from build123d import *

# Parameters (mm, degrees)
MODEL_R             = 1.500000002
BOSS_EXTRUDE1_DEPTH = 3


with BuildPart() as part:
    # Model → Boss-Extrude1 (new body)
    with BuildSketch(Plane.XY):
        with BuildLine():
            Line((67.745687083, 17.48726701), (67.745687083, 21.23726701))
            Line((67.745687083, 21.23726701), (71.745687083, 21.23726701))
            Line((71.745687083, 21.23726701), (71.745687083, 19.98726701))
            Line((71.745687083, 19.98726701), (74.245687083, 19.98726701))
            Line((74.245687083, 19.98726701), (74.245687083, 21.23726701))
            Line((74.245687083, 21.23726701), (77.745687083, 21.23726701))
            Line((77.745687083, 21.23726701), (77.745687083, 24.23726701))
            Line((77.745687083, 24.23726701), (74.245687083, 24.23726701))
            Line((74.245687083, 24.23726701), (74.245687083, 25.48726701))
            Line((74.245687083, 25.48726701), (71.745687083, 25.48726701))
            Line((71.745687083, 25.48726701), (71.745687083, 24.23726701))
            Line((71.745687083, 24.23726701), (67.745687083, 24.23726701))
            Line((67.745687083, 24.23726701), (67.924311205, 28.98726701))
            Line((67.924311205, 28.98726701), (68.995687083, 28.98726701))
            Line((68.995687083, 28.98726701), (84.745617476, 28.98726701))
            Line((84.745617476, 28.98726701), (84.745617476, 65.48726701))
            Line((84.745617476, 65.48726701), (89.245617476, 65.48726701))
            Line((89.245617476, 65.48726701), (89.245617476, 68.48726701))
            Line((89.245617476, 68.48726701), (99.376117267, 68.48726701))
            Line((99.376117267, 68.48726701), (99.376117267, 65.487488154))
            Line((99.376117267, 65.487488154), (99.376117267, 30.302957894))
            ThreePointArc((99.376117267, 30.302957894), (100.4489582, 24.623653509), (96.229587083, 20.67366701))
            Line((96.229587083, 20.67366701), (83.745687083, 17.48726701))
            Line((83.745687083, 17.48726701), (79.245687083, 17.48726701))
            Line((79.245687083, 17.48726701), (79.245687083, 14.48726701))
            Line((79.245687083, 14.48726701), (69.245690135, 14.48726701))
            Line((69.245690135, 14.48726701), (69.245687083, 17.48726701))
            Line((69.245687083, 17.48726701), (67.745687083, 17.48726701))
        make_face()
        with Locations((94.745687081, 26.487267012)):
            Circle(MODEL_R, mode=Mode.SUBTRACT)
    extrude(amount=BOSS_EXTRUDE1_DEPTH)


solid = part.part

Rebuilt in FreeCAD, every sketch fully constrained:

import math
import FreeCAD as App
import Part
import Sketcher
Q = App.Units.Quantity

doc = App.newDocument("Part")
body = doc.addObject("PartDesign::Body", "Body")

# Sketch on XY plane
sketch1 = body.newObject("Sketcher::SketchObject", "Sketch")
sketch1.AttachmentSupport = (doc.getObject("XY_Plane"), [""])
sketch1.MapMode = "FlatFace"
sketch1.addGeometry(Part.LineSegment(App.Vector(67.7, 21.2, 0), App.Vector(67.7, 17.5, 0)), False)
sketch1.addGeometry(Part.LineSegment(App.Vector(67.7, 17.5, 0), App.Vector(69.2, 17.5, 0)), False)
sketch1.addGeometry(Part.LineSegment(App.Vector(69.2, 17.5, 0), App.Vector(69.2, 14.5, 0)), False)
sketch1.addGeometry(Part.LineSegment(App.Vector(69.2, 14.5, 0), App.Vector(79.2, 14.5, 0)), False)
sketch1.addGeometry(Part.LineSegment(App.Vector(79.2, 14.5, 0), App.Vector(79.2, 17.5, 0)), False)
sketch1.addGeometry(Part.LineSegment(App.Vector(79.2, 17.5, 0), App.Vector(83.7, 17.5, 0)), False)
sketch1.addGeometry(Part.LineSegment(App.Vector(83.7, 17.5, 0), App.Vector(96.2, 20.7, 0)), False)
sketch1.addGeometry(Part.ArcOfCircle(Part.Circle(App.Vector(94.7, 26.5, 0), App.Vector(0, 0, 1), 6), math.radians(-76), math.radians(39)), False)
sketch1.addGeometry(Part.LineSegment(App.Vector(99.4, 30.3, 0), App.Vector(99.4, 68.5, 0)), False)
sketch1.addGeometry(Part.LineSegment(App.Vector(99.4, 68.5, 0), App.Vector(89.2, 68.5, 0)), False)
sketch1.addGeometry(Part.LineSegment(App.Vector(89.2, 68.5, 0), App.Vector(89.2, 65.5, 0)), False)
sketch1.addGeometry(Part.LineSegment(App.Vector(89.2, 65.5, 0), App.Vector(84.7, 65.5, 0)), False)
sketch1.addGeometry(Part.LineSegment(App.Vector(84.7, 65.5, 0), App.Vector(84.7, 29, 0)), False)
sketch1.addGeometry(Part.LineSegment(App.Vector(84.7, 29, 0), App.Vector(67.9, 29, 0)), False)
sketch1.addGeometry(Part.LineSegment(App.Vector(67.9, 29, 0), App.Vector(67.7, 24.2, 0)), False)
sketch1.addGeometry(Part.LineSegment(App.Vector(67.7, 24.2, 0), App.Vector(71.7, 24.2, 0)), False)
sketch1.addGeometry(Part.LineSegment(App.Vector(71.7, 24.2, 0), App.Vector(71.7, 25.5, 0)), False)
sketch1.addGeometry(Part.LineSegment(App.Vector(71.7, 25.5, 0), App.Vector(74.2, 25.5, 0)), False)
sketch1.addGeometry(Part.LineSegment(App.Vector(74.2, 25.5, 0), App.Vector(74.2, 24.2, 0)), False)
sketch1.addGeometry(Part.LineSegment(App.Vector(74.2, 24.2, 0), App.Vector(77.7, 24.2, 0)), False)
sketch1.addGeometry(Part.LineSegment(App.Vector(77.7, 24.2, 0), App.Vector(77.7, 21.2, 0)), False)
sketch1.addGeometry(Part.LineSegment(App.Vector(77.7, 21.2, 0), App.Vector(74.2, 21.2, 0)), False)
sketch1.addGeometry(Part.LineSegment(App.Vector(74.2, 21.2, 0), App.Vector(74.2, 20, 0)), False)
sketch1.addGeometry(Part.LineSegment(App.Vector(74.2, 20, 0), App.Vector(71.7, 20, 0)), False)
sketch1.addGeometry(Part.LineSegment(App.Vector(71.7, 20, 0), App.Vector(71.7, 21.2, 0)), False)
sketch1.addGeometry(Part.LineSegment(App.Vector(71.7, 21.2, 0), App.Vector(67.7, 21.2, 0)), False)
sketch1.addGeometry(Part.Circle(App.Vector(94.7, 26.5, 0), App.Vector(0, 0, 1), 1.5), False)
sketch1.addConstraint(Sketcher.Constraint("Coincident", 0, 2, 1, 1))
sketch1.addConstraint(Sketcher.Constraint("Coincident", 1, 2, 2, 1))
sketch1.addConstraint(Sketcher.Constraint("Coincident", 2, 2, 3, 1))
sketch1.addConstraint(Sketcher.Constraint("Coincident", 3, 2, 4, 1))
sketch1.addConstraint(Sketcher.Constraint("Coincident", 4, 2, 5, 1))
sketch1.addConstraint(Sketcher.Constraint("Coincident", 5, 2, 6, 1))
sketch1.addConstraint(Sketcher.Constraint("Coincident", 6, 2, 7, 1))
sketch1.addConstraint(Sketcher.Constraint("Coincident", 7, 2, 8, 1))
sketch1.addConstraint(Sketcher.Constraint("Coincident", 8, 2, 9, 1))
sketch1.addConstraint(Sketcher.Constraint("Coincident", 9, 2, 10, 1))
sketch1.addConstraint(Sketcher.Constraint("Coincident", 10, 2, 11, 1))
sketch1.addConstraint(Sketcher.Constraint("Coincident", 11, 2, 12, 1))
sketch1.addConstraint(Sketcher.Constraint("Coincident", 12, 2, 13, 1))
sketch1.addConstraint(Sketcher.Constraint("Coincident", 13, 2, 14, 1))
sketch1.addConstraint(Sketcher.Constraint("Coincident", 14, 2, 15, 1))
sketch1.addConstraint(Sketcher.Constraint("Coincident", 15, 2, 16, 1))
sketch1.addConstraint(Sketcher.Constraint("Coincident", 16, 2, 17, 1))
sketch1.addConstraint(Sketcher.Constraint("Coincident", 17, 2, 18, 1))
sketch1.addConstraint(Sketcher.Constraint("Coincident", 18, 2, 19, 1))
sketch1.addConstraint(Sketcher.Constraint("Coincident", 19, 2, 20, 1))
sketch1.addConstraint(Sketcher.Constraint("Coincident", 20, 2, 21, 1))
sketch1.addConstraint(Sketcher.Constraint("Coincident", 21, 2, 22, 1))
sketch1.addConstraint(Sketcher.Constraint("Coincident", 22, 2, 23, 1))
sketch1.addConstraint(Sketcher.Constraint("Coincident", 23, 2, 24, 1))
sketch1.addConstraint(Sketcher.Constraint("Coincident", 24, 2, 25, 1))
sketch1.addConstraint(Sketcher.Constraint("Coincident", 25, 2, 0, 1))
sketch1.addConstraint(Sketcher.Constraint("Vertical", 0))
sketch1.addConstraint(Sketcher.Constraint("Horizontal", 1))
sketch1.addConstraint(Sketcher.Constraint("Horizontal", 3))
sketch1.addConstraint(Sketcher.Constraint("Vertical", 4))
sketch1.addConstraint(Sketcher.Constraint("Horizontal", 5))
sketch1.addConstraint(Sketcher.Constraint("Vertical", 8))
sketch1.addConstraint(Sketcher.Constraint("Horizontal", 9))
sketch1.addConstraint(Sketcher.Constraint("Vertical", 10))
sketch1.addConstraint(Sketcher.Constraint("Horizontal", 11))
sketch1.addConstraint(Sketcher.Constraint("Vertical", 12))
sketch1.addConstraint(Sketcher.Constraint("Horizontal", 13))
sketch1.addConstraint(Sketcher.Constraint("Horizontal", 15))
sketch1.addConstraint(Sketcher.Constraint("Vertical", 16))
sketch1.addConstraint(Sketcher.Constraint("Horizontal", 17))
sketch1.addConstraint(Sketcher.Constraint("Vertical", 18))
sketch1.addConstraint(Sketcher.Constraint("Horizontal", 19))
sketch1.addConstraint(Sketcher.Constraint("Vertical", 20))
sketch1.addConstraint(Sketcher.Constraint("Horizontal", 21))
sketch1.addConstraint(Sketcher.Constraint("Vertical", 22))
sketch1.addConstraint(Sketcher.Constraint("Horizontal", 23))
sketch1.addConstraint(Sketcher.Constraint("Vertical", 24))
sketch1.addConstraint(Sketcher.Constraint("Horizontal", 25))
sketch1.addConstraint(Sketcher.Constraint("Horizontal", 1, 2, 4, 2))
sketch1.addConstraint(Sketcher.Constraint("Horizontal", 15, 2, 18, 2))
sketch1.addConstraint(Sketcher.Constraint("Horizontal", 21, 2, 24, 2))
sketch1.addConstraint(Sketcher.Constraint("Vertical", 0, 2, 14, 2))
sketch1.addConstraint(Sketcher.Constraint("Vertical", 18, 2, 21, 2))
sketch1.addConstraint(Sketcher.Constraint("Vertical", 16, 2, 23, 2))
sketch1.addConstraint(Sketcher.Constraint("Equal", 5, 11))
sketch1.addConstraint(Sketcher.Constraint("Equal", 4, 10))
sketch1.addConstraint(Sketcher.Constraint("Equal", 10, 20))
sketch1.addConstraint(Sketcher.Constraint("Equal", 18, 22))
sketch1.addConstraint(Sketcher.Constraint("Diameter", 26, Q("3 mm")))
sketch1.addConstraint(Sketcher.Constraint("DistanceX", 15, 1, 15, 2, Q("4 mm")))
sketch1.addConstraint(Sketcher.Constraint("DistanceY", 4, 1, 4, 2, Q("3 mm")))
sketch1.addConstraint(Sketcher.Constraint("DistanceX", 1, 1, 1, 2, Q("1.5 mm")))
sketch1.addConstraint(Sketcher.Constraint("DistanceX", 5, 1, 5, 2, Q("4.5 mm")))
sketch1.addConstraint(Sketcher.Constraint("DistanceX", 17, 1, 17, 2, Q("2.5 mm")))
sketch1.addConstraint(Sketcher.Constraint("DistanceX", 19, 1, 19, 2, Q("3.5 mm")))
sketch1.addConstraint(Sketcher.Constraint("DistanceY", 12, 2, 12, 1, Q("36.5 mm")))
sketch1.addConstraint(Sketcher.Constraint("DistanceX", 0, 2, 26, 3, Q("27 mm")))
sketch1.addConstraint(Sketcher.Constraint("DistanceY", 0, 2, 26, 3, Q("9 mm")))
sketch1.addConstraint(Sketcher.Constraint("DistanceX", 1, 2, 3, 2, Q("10 mm")))
sketch1.addConstraint(Sketcher.Constraint("DistanceY", 26, 3, 8, 2, Q("42 mm")))
sketch1.addConstraint(Sketcher.Constraint("DistanceY", 1, 2, 16, 2, Q("8 mm")))
sketch1.addConstraint(Sketcher.Constraint("DistanceY", 0, 2, 0, 1, Q("3.75 mm")))
sketch1.addConstraint(Sketcher.Constraint("Radius", 7, Q("5.999991 mm")))
sketch1.addConstraint(Sketcher.Constraint("DistanceX", 9, 2, 9, 1, Q("10.1305 mm")))
sketch1.addConstraint(Sketcher.Constraint("DistanceY", 8, 1, 8, 2, Q("38.184309 mm")))
sketch1.addConstraint(Sketcher.Constraint("DistanceX", 26, 3, 6, 2, Q("1.4839 mm")))
sketch1.addConstraint(Sketcher.Constraint("DistanceY", 6, 2, 26, 3, Q("5.8136 mm")))
sketch1.addConstraint(Sketcher.Constraint("DistanceX", 3, 1, 3, 2, Q("9.999997 mm")))
sketch1.addConstraint(Sketcher.Constraint("DistanceX", 13, 2, 13, 1, Q("16.821306 mm")))
sketch1.addConstraint(Sketcher.Constraint("DistanceX", -1, 1, 7, 3, Q("94.745731 mm")))
sketch1.addConstraint(Sketcher.Constraint("DistanceX", -1, 1, 2, 2, Q("69.24569 mm")))
sketch1.addConstraint(Sketcher.Constraint("DistanceY", -1, 1, 7, 3, Q("26.487277 mm")))
pad1 = body.newObject("PartDesign::Pad", "Pad")
pad1.Profile = sketch1
pad1.Length = 3

doc.recompute()
